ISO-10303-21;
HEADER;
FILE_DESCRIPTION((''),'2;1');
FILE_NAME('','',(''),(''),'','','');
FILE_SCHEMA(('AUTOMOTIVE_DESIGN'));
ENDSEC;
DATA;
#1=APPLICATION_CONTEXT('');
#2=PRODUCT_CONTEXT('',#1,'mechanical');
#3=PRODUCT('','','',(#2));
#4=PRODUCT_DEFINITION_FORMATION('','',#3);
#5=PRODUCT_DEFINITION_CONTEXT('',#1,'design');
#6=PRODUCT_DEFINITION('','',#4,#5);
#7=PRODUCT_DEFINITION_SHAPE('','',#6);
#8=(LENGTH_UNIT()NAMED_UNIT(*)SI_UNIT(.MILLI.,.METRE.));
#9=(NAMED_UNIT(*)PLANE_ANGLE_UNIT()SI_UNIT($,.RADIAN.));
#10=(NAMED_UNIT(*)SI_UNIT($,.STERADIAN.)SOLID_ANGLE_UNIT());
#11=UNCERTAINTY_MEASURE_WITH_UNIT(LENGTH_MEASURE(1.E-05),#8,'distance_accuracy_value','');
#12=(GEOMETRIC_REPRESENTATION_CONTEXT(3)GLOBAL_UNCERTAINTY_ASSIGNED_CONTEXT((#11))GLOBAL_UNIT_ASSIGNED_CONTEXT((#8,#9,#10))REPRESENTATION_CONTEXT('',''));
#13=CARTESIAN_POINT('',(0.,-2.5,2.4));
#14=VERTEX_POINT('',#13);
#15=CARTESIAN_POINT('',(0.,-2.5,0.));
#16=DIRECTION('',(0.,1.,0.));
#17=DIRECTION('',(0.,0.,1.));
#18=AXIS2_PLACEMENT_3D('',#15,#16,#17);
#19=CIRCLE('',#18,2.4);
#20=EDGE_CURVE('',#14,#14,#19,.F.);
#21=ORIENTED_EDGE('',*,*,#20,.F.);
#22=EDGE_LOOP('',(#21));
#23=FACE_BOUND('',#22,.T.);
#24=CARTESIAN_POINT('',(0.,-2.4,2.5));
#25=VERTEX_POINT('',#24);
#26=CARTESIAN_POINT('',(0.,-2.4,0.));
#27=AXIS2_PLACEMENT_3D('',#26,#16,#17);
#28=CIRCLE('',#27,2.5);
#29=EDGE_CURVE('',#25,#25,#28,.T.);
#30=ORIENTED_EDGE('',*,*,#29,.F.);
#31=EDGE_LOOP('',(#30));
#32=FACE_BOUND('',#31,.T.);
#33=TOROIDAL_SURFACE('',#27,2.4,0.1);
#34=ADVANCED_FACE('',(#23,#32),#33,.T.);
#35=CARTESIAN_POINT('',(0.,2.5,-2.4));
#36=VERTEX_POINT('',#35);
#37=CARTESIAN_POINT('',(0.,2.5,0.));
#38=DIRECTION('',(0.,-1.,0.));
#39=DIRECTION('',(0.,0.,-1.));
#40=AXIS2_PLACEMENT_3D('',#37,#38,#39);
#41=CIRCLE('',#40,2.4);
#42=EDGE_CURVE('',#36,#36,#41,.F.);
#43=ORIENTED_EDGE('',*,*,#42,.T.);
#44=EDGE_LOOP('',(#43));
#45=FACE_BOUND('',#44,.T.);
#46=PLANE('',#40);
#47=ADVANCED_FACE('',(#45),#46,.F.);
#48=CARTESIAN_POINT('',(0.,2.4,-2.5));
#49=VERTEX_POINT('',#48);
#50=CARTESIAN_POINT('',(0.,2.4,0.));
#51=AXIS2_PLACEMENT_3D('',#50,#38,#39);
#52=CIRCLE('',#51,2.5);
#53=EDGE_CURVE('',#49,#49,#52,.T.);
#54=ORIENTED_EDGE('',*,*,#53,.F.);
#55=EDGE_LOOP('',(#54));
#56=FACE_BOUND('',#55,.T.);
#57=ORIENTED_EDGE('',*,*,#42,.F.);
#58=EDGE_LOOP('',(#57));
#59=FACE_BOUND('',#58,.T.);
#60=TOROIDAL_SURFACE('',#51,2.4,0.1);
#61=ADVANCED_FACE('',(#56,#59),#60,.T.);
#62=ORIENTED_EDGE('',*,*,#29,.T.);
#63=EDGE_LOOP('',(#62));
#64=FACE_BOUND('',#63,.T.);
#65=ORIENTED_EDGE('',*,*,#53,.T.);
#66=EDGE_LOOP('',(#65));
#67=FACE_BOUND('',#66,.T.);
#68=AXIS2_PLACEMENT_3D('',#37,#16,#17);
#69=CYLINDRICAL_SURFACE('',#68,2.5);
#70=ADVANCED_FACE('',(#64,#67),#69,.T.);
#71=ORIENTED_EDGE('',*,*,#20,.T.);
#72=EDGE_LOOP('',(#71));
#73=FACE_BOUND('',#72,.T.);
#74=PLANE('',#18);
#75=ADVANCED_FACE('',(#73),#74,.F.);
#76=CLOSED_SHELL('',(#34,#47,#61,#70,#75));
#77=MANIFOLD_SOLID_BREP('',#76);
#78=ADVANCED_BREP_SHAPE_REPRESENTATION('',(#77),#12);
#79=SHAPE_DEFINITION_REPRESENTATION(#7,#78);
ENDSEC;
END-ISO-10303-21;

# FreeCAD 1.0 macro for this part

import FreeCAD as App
import Part
import Sketcher
from FreeCAD import Vector


def edges_at(feature, points):
    """Names of the edges that pass closest to the given points."""
    edges = feature.Shape.Edges
    near = lambda p: min(range(len(edges)), key=lambda i: edges[i].distToShape(Part.Vertex(*p))[0])
    return sorted({f"Edge{near(p) + 1}" for p in points})

doc = App.newDocument("Part")
body = doc.addObject("PartDesign::Body", "Body")

sketch1 = body.newObject("Sketcher::SketchObject", "Sketch")
sketch1.AttachmentSupport = (doc.getObject("XY_Plane"), [""])
sketch1.MapMode = "FlatFace"
sketch1.addGeometry([
    Part.LineSegment(Vector(0, 2.5, 0), Vector(0, -2.5, 0)),
    Part.LineSegment(Vector(0, -2.5, 0), Vector(2.5, -2.5, 0)),
    Part.LineSegment(Vector(2.5, -2.5, 0), Vector(2.5, 2.5, 0)),
    Part.LineSegment(Vector(2.5, 2.5, 0), Vector(0, 2.5, 0)),
], False)
sketch1.addConstraint([
    Sketcher.Constraint("Coincident", 0, 2, 1, 1),
    Sketcher.Constraint("Coincident", 1, 2, 2, 1),
    Sketcher.Constraint("Coincident", 2, 2, 3, 1),
    Sketcher.Constraint("Coincident", 3, 2, 0, 1),
    Sketcher.Constraint("Vertical", 0),
    Sketcher.Constraint("Horizontal", 1),
    Sketcher.Constraint("Vertical", 2),
    Sketcher.Constraint("Horizontal", 3),
    Sketcher.Constraint("Symmetric", 0, 2, 3, 2, -1, 1),
    Sketcher.Constraint("DistanceY", 0, 2, 0, 1, 5.0),
    Sketcher.Constraint("DistanceX", 1, 1, 1, 2, 2.5),
])
revolution = body.newObject("PartDesign::Revolution", "Revolution")
revolution.Profile = sketch1
revolution.ReferenceAxis = (sketch1, ["V_Axis"])
revolution.Angle = 360
doc.recompute()

fillet = body.newObject("PartDesign::Fillet", "Fillet")
fillet.Base = (revolution, edges_at(revolution, [(0, -2.5, -2.5), (0, 2.5, -2.5)]))
fillet.Radius = 0.1

doc.recompute()
